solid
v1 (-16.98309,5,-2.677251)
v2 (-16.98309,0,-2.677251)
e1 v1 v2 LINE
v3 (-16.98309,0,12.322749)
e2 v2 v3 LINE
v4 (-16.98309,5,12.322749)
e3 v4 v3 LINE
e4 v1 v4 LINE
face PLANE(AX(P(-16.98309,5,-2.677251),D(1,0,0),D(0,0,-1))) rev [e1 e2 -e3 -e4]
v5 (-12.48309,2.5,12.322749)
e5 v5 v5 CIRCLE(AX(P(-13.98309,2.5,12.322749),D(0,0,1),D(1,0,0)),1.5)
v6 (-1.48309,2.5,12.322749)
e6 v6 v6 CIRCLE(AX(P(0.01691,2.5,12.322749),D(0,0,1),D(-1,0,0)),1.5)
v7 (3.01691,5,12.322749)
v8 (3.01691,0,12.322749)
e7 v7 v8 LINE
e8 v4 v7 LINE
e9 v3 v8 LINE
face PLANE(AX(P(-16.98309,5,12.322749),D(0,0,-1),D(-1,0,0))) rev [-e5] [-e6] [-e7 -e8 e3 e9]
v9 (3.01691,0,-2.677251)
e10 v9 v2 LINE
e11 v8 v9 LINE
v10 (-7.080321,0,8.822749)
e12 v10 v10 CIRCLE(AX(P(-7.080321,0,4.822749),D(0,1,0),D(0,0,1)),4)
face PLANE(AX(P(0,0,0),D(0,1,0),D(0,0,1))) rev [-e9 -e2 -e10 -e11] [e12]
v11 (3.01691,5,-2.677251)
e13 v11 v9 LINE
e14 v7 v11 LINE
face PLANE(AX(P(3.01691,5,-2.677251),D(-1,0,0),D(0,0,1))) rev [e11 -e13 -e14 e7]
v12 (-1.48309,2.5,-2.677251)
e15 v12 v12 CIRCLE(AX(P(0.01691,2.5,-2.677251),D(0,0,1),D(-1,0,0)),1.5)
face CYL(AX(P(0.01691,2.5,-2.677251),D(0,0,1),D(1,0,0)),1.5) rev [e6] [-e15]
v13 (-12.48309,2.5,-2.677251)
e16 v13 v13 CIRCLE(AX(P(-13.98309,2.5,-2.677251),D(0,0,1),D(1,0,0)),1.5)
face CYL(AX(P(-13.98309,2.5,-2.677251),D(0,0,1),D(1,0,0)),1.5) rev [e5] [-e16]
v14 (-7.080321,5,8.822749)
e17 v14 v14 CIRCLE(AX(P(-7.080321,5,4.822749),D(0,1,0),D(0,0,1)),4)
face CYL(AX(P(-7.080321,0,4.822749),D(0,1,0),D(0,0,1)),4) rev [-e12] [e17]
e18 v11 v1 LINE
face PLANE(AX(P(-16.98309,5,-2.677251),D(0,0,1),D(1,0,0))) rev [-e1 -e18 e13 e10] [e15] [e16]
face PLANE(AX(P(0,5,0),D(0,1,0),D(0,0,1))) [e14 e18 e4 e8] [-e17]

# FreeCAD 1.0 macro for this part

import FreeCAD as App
import Part
import Sketcher
Q = App.Units.Quantity


def add_polygon(sketch, points):
    """Adds a closed chain of lines whose ends are joined by coincident constraints."""
    first, n = sketch.GeometryCount, len(points)
    for a, b in zip(points, points[1:] + points[:1]):
        sketch.addGeometry(Part.LineSegment(App.Vector(*a, 0), App.Vector(*b, 0)), False)
    for i in range(n):
        sketch.addConstraint(Sketcher.Constraint("Coincident", first + i, 2, first + (i + 1) % n, 1))

doc = App.newDocument("Part")
params = doc.addObject("Spreadsheet::Sheet", "Params")
for row, (alias, value) in enumerate([
    ("sketch1_width", "20 mm"),
    ("sketch1_height", "15 mm"),
    ("pad1_length", "5 mm"),
    ("sketch2_diameter", "3 mm"),
    ("sketch3_diameter", "8 mm"),
    ("pocket2_length", "5 mm"),
], start=1):
    params.set(f"A{row}", alias)
    params.set(f"B{row}", "=" + value)
    params.setAlias(f"B{row}", alias)

body = doc.addObject("PartDesign::Body", "Body")

# Sketch on XZ plane
sketch1 = body.newObject("Sketcher::SketchObject", "Sketch")
sketch1.AttachmentSupport = (doc.getObject("XZ_Plane"), [""])
sketch1.MapMode = "FlatFace"
add_polygon(sketch1, [(-17, -3), (-17, 12), (3, 12), (3, -3)])  # lines 0-3
sketch1.addConstraint(Sketcher.Constraint("Vertical", 0))
sketch1.addConstraint(Sketcher.Constraint("Horizontal", 1))
sketch1.addConstraint(Sketcher.Constraint("Vertical", 2))
sketch1.addConstraint(Sketcher.Constraint("Horizontal", 3))
sketch1.addConstraint(Sketcher.Constraint("DistanceX", 1, 1, 1, 2, Q("20 mm")))
sketch1.addConstraint(Sketcher.Constraint("DistanceY", 0, 1, 0, 2, Q("15 mm")))
sketch1.addConstraint(Sketcher.Constraint("DistanceX", 0, 2, -1, 1, Q("16.98309 mm")))
sketch1.addConstraint(Sketcher.Constraint("DistanceY", -1, 1, 0, 2, Q("12.322749 mm")))
sketch1.setExpression("Constraints[8]", "Params.sketch1_width")
sketch1.setExpression("Constraints[9]", "Params.sketch1_height")
pad1 = body.newObject("PartDesign::Pad", "Pad")
pad1.Profile = sketch1
pad1.setExpression("Length", "Params.pad1_length")
pad1.Reversed = True

# Sketch on XY plane
sketch2 = body.newObject("Sketcher::SketchObject", "Sketch001")
sketch2.AttachmentSupport = (doc.getObject("XY_Plane"), [""])
sketch2.MapMode = "FlatFace"
sketch2.AttachmentOffset = App.Placement(App.Vector(0, 0, 12.322749), App.Rotation())
sketch2.addGeometry(Part.Circle(App.Vector(-14, 2.5, 0), App.Vector(0, 0, 1), 1.5), False)
sketch2.addGeometry(Part.Circle(App.Vector(0, 2.5, 0), App.Vector(0, 0, 1), 1.5), False)
sketch2.addConstraint(Sketcher.Constraint("Equal", 0, 1))
sketch2.addConstraint(Sketcher.Constraint("Horizontal", 0, 3, 1, 3))
sketch2.addConstraint(Sketcher.Constraint("Diameter", 0, Q("3 mm")))
sketch2.addConstraint(Sketcher.Constraint("DistanceX", 0, 3, 1, 3, Q("14 mm")))
sketch2.addConstraint(Sketcher.Constraint("DistanceY", -1, 1, 0, 3, Q("2.5 mm")))
sketch2.addConstraint(Sketcher.Constraint("DistanceX", 0, 3, -1, 1, Q("13.98309 mm")))
sketch2.setExpression("Constraints[2]", "Params.sketch2_diameter")
pocket1 = body.newObject("PartDesign::Pocket", "Pocket")
pocket1.Profile = sketch2
pocket1.Type = "ThroughAll"

# Sketch on XZ plane
sketch3 = body.newObject("Sketcher::SketchObject", "Sketch002")
sketch3.AttachmentSupport = (doc.getObject("XZ_Plane"), [""])
sketch3.MapMode = "FlatFace"
sketch3.AttachmentOffset = App.Placement(App.Vector(0, 0, -5), App.Rotation())
sketch3.addGeometry(Part.Circle(App.Vector(-7.1, 4.8, 0), App.Vector(0, 0, 1), 4), False)
sketch3.addConstraint(Sketcher.Constraint("Diameter", 0, Q("8 mm")))
sketch3.addConstraint(Sketcher.Constraint("DistanceX", 0, 3, -1, 1, Q("7.080321 mm")))
sketch3.addConstraint(Sketcher.Constraint("DistanceY", -1, 1, 0, 3, Q("4.822749 mm")))
sketch3.setExpression("Constraints[0]", "Params.sketch3_diameter")
pocket2 = body.newObject("PartDesign::Pocket", "Pocket001")
pocket2.Profile = sketch3
pocket2.setExpression("Length", "Params.pocket2_length")
pocket2.Reversed = True

doc.recompute()
